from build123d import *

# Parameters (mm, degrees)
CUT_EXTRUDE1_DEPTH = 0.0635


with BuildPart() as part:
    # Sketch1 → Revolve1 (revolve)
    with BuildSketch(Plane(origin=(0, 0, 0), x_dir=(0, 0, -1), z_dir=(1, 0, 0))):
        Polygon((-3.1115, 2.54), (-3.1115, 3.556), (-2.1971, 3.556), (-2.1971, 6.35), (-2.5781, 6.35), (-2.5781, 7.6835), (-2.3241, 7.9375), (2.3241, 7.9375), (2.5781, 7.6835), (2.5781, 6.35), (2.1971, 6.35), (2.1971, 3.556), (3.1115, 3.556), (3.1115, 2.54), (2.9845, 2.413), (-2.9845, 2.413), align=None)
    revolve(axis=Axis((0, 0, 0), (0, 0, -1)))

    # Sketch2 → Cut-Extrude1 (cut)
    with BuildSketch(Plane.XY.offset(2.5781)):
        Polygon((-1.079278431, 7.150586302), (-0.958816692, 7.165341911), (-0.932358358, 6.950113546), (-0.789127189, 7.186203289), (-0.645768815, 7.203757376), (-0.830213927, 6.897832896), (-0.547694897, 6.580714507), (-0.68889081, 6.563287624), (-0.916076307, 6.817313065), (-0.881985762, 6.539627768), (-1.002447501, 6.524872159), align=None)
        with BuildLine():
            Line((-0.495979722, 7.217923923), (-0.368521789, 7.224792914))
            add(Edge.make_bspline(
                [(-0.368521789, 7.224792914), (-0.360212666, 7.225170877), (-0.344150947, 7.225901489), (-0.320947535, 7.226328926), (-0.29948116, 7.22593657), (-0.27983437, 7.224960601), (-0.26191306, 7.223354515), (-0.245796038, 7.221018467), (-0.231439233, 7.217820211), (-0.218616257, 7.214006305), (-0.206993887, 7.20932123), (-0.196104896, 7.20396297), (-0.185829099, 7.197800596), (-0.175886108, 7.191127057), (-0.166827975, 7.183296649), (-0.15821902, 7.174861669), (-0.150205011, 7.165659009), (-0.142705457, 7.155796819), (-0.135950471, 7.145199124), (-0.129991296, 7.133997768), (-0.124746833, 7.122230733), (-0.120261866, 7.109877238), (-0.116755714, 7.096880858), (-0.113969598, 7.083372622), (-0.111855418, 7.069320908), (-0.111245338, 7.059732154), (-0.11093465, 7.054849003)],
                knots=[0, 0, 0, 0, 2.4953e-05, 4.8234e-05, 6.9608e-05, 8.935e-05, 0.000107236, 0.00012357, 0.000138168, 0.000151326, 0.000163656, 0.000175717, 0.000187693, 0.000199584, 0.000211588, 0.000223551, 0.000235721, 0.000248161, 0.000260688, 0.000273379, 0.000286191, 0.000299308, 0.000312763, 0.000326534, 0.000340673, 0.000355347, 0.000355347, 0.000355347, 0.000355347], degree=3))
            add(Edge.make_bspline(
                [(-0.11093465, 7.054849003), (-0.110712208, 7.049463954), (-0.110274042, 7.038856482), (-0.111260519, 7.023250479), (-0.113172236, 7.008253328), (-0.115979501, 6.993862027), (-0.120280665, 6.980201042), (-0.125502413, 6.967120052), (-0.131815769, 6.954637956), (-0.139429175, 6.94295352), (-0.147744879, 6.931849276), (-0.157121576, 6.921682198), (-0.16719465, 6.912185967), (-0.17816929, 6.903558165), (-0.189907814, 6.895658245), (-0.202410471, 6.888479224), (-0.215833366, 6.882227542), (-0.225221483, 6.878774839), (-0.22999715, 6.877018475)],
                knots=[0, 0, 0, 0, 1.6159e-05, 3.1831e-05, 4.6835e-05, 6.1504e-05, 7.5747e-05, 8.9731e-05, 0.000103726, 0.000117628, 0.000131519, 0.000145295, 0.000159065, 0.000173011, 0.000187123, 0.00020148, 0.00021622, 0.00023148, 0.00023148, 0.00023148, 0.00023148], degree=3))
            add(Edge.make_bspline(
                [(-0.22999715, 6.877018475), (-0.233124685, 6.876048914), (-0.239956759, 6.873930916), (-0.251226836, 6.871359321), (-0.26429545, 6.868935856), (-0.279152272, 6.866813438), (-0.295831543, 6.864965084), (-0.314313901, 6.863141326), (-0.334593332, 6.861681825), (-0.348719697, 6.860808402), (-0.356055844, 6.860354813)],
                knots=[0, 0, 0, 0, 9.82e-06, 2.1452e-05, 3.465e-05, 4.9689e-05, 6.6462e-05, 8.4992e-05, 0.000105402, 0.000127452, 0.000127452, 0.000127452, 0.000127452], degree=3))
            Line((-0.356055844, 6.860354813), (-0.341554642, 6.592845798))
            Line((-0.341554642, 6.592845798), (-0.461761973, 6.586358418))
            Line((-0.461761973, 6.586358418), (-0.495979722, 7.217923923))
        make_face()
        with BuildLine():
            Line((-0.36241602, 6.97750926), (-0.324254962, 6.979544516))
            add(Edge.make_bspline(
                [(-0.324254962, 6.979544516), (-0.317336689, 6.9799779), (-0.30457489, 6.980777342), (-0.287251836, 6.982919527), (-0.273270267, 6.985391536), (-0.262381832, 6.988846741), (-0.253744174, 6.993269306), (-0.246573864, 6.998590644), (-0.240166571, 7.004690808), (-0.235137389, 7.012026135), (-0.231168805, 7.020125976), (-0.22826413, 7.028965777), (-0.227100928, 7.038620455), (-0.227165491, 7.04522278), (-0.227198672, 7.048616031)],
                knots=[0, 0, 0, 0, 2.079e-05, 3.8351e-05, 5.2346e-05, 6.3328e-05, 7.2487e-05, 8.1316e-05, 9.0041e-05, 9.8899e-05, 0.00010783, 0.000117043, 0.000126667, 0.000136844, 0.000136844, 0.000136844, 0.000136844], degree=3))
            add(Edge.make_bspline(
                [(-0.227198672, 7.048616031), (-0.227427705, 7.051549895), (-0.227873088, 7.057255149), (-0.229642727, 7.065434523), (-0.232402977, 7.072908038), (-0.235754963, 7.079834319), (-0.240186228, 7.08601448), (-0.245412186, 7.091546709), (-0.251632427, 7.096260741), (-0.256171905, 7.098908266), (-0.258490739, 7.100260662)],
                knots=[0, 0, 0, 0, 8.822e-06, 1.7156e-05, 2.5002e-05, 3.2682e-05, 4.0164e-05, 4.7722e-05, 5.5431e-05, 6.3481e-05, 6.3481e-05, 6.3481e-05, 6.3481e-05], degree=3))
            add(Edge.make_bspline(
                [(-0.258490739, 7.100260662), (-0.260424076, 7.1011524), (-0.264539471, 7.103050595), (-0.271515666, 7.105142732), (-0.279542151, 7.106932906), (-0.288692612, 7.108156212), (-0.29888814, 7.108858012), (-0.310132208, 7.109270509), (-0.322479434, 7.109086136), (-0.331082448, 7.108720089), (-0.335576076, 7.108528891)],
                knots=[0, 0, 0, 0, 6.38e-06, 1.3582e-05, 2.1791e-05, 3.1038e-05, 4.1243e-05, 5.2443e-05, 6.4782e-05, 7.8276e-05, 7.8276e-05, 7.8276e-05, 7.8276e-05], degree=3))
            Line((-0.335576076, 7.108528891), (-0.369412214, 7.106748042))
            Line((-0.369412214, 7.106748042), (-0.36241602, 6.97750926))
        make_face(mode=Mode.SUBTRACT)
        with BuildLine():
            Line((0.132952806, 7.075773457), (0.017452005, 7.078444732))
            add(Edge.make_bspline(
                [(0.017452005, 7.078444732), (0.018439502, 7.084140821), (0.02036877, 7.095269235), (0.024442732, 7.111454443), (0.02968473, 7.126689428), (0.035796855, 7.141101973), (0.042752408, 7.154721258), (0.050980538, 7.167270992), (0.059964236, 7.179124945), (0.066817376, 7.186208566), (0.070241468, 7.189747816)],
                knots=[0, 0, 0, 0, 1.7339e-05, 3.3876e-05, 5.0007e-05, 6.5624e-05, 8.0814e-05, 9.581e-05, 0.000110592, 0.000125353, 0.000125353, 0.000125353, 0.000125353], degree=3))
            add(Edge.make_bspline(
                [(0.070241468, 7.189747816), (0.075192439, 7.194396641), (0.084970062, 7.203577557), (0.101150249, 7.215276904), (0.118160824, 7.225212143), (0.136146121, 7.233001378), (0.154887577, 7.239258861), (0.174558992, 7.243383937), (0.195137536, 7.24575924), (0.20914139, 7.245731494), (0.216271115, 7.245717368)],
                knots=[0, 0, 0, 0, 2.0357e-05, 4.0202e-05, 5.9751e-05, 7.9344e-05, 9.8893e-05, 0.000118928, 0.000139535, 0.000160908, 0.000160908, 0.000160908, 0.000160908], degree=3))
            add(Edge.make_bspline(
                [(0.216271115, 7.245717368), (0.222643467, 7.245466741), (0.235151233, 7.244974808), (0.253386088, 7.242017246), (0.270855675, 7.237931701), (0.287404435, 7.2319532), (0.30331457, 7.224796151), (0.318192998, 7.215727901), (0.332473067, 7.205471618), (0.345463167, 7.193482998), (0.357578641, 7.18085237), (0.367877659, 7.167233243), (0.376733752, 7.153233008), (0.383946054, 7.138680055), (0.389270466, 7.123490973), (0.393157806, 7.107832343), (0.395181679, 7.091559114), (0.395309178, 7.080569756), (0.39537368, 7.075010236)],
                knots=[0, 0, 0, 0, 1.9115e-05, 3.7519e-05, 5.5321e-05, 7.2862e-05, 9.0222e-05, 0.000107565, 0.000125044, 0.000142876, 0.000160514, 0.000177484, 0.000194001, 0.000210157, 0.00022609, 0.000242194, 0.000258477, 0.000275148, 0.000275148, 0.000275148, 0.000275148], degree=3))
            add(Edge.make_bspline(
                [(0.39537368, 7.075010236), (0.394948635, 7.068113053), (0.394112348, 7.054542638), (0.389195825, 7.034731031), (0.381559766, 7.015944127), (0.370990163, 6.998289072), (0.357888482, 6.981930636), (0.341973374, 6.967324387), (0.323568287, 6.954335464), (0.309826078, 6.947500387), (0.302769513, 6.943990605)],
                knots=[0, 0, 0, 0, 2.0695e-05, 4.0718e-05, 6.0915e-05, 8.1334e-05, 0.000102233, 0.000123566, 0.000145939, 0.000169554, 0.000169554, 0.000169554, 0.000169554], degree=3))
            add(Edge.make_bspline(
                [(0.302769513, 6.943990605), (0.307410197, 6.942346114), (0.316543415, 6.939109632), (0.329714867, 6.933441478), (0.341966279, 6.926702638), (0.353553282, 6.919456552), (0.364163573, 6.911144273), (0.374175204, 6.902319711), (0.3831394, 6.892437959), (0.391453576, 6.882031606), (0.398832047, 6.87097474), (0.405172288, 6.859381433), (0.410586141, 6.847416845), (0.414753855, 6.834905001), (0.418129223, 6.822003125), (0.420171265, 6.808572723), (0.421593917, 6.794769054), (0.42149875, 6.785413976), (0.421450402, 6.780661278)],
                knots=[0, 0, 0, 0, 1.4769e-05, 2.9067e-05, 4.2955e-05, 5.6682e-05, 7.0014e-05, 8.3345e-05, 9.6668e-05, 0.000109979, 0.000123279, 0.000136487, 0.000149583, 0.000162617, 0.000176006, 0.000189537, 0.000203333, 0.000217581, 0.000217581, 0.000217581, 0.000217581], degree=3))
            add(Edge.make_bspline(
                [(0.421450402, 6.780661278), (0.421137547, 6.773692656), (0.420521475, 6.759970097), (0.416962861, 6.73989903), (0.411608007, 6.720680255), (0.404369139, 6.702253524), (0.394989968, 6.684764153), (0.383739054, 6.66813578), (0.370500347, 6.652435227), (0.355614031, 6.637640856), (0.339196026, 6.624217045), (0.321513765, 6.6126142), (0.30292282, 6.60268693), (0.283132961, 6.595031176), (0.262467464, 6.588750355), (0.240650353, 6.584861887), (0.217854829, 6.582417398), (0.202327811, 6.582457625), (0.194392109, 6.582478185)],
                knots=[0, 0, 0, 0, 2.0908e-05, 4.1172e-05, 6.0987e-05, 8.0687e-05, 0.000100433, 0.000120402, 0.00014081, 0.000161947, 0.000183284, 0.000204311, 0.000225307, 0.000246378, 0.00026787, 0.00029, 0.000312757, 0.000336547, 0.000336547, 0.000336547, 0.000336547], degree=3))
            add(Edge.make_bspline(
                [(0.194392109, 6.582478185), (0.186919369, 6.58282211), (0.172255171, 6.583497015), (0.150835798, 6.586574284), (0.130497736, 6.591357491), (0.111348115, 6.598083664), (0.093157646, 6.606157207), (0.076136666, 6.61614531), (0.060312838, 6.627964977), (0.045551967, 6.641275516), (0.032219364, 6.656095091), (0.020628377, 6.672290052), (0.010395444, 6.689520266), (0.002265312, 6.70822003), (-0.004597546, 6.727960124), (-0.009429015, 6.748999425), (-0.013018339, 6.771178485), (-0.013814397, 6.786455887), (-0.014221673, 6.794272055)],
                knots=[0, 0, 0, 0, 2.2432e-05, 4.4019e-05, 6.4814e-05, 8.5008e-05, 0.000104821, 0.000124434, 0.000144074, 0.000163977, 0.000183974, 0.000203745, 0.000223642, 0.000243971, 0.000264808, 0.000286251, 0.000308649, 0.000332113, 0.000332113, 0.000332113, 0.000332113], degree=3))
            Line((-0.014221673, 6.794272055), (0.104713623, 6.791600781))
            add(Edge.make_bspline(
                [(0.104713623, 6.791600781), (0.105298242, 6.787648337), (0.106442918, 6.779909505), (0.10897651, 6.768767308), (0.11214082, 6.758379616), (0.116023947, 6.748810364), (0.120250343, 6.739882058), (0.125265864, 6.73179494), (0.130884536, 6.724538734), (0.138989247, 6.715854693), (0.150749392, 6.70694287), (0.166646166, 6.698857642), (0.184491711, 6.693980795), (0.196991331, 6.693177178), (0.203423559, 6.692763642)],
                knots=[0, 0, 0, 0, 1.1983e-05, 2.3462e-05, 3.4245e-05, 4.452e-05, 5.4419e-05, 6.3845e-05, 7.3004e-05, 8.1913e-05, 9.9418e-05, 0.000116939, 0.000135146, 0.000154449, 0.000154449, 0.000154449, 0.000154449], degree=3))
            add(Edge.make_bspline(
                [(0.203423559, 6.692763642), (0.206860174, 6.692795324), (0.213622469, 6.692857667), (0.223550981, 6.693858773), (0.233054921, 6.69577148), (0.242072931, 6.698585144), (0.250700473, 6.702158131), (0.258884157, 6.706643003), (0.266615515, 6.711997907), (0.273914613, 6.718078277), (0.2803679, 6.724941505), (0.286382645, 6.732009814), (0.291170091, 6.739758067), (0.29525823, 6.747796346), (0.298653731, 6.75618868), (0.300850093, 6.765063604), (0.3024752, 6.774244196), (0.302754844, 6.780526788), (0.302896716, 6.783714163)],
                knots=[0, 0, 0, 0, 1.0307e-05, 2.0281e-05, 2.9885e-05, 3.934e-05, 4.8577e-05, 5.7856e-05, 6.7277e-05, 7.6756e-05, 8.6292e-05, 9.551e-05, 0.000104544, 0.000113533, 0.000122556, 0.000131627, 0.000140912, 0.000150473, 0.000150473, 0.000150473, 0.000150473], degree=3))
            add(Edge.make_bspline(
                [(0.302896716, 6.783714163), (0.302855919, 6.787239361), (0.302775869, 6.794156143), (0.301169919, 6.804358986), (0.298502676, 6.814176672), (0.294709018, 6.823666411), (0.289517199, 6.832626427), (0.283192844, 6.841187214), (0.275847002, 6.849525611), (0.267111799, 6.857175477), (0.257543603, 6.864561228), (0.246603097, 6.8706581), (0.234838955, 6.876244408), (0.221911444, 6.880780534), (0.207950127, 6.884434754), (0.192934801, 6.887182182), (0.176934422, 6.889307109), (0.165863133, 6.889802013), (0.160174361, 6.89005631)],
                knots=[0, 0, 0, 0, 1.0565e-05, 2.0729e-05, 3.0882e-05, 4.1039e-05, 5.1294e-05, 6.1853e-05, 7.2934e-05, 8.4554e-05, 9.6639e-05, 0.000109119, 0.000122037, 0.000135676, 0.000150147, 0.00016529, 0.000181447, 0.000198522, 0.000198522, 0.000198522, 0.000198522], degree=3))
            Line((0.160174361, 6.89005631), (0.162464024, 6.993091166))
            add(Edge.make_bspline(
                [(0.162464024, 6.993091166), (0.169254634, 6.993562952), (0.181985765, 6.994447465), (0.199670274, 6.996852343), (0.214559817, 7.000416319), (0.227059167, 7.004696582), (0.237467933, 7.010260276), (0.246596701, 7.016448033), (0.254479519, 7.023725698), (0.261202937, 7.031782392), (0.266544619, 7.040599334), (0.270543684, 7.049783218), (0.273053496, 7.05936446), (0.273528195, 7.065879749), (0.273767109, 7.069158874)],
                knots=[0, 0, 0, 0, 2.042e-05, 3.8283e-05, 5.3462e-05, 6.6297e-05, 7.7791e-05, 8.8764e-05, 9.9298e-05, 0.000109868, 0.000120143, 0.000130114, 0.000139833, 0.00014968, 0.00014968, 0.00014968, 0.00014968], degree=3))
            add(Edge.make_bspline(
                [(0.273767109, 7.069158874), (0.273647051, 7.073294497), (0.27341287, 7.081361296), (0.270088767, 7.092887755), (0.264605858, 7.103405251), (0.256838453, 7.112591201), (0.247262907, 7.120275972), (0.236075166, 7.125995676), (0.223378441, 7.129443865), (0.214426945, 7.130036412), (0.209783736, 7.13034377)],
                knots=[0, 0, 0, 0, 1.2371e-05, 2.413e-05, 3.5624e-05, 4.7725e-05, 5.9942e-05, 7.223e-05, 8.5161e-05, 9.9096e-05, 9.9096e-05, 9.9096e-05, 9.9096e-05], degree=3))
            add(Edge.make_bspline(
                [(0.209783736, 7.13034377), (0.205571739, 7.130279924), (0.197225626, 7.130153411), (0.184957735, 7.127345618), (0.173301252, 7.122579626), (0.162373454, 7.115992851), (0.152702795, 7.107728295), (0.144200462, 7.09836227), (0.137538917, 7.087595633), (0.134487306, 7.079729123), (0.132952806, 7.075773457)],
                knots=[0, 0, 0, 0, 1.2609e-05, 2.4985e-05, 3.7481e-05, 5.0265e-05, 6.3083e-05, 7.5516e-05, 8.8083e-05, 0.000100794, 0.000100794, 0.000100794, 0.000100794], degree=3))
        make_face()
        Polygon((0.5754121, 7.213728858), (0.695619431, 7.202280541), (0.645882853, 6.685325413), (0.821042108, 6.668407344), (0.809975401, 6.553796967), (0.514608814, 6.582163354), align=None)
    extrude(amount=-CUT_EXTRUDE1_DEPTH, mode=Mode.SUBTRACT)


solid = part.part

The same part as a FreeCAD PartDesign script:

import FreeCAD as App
import Part
import Sketcher

V = App.Vector
Q = App.Units.Quantity

doc = App.newDocument("Part")
body = doc.addObject("PartDesign::Body", "Body")

sketch1 = body.newObject("Sketcher::SketchObject", "Sketch")
sketch1.AttachmentSupport = (doc.getObject("YZ_Plane"), [""])
sketch1.MapMode = "FlatFace"
sketch1.addGeometry([
    Part.LineSegment(V(3.556, 3.1115, 0), V(2.54, 3.1115, 0)),
    Part.LineSegment(V(2.54, 3.1115, 0), V(2.413, 2.9845, 0)),
    Part.LineSegment(V(2.413, 2.9845, 0), V(2.413, -2.9845, 0)),
    Part.LineSegment(V(2.413, -2.9845, 0), V(2.54, -3.1115, 0)),
    Part.LineSegment(V(2.54, -3.1115, 0), V(3.556, -3.1115, 0)),
    Part.LineSegment(V(3.556, -3.1115, 0), V(3.556, -2.1971, 0)),
    Part.LineSegment(V(3.556, -2.1971, 0), V(6.35, -2.1971, 0)),
    Part.LineSegment(V(6.35, -2.1971, 0), V(6.35, -2.5781, 0)),
    Part.LineSegment(V(6.35, -2.5781, 0), V(7.6835, -2.5781, 0)),
    Part.LineSegment(V(7.6835, -2.5781, 0), V(7.9375, -2.3241, 0)),
    Part.LineSegment(V(7.9375, -2.3241, 0), V(7.9375, 2.3241, 0)),
    Part.LineSegment(V(7.9375, 2.3241, 0), V(7.6835, 2.5781, 0)),
    Part.LineSegment(V(7.6835, 2.5781, 0), V(6.35, 2.5781, 0)),
    Part.LineSegment(V(6.35, 2.5781, 0), V(6.35, 2.1971, 0)),
    Part.LineSegment(V(6.35, 2.1971, 0), V(3.556, 2.1971, 0)),
    Part.LineSegment(V(3.556, 2.1971, 0), V(3.556, 3.1115, 0)),
], False)
sketch1.addConstraint([
    Sketcher.Constraint("Coincident", 0, 2, 1, 1),
    Sketcher.Constraint("Coincident", 1, 2, 2, 1),
    Sketcher.Constraint("Coincident", 2, 2, 3, 1),
    Sketcher.Constraint("Coincident", 3, 2, 4, 1),
    Sketcher.Constraint("Coincident", 4, 2, 5, 1),
    Sketcher.Constraint("Coincident", 5, 2, 6, 1),
    Sketcher.Constraint("Coincident", 6, 2, 7, 1),
    Sketcher.Constraint("Coincident", 7, 2, 8, 1),
    Sketcher.Constraint("Coincident", 8, 2, 9, 1),
    Sketcher.Constraint("Coincident", 9, 2, 10, 1),
    Sketcher.Constraint("Coincident", 10, 2, 11, 1),
    Sketcher.Constraint("Coincident", 11, 2, 12, 1),
    Sketcher.Constraint("Coincident", 12, 2, 13, 1),
    Sketcher.Constraint("Coincident", 13, 2, 14, 1),
    Sketcher.Constraint("Coincident", 14, 2, 15, 1),
    Sketcher.Constraint("Coincident", 15, 2, 0, 1),
    Sketcher.Constraint("Horizontal", 0),
    Sketcher.Constraint("Vertical", 2),
    Sketcher.Constraint("Horizontal", 4),
    Sketcher.Constraint("Vertical", 5),
    Sketcher.Constraint("Horizontal", 6),
    Sketcher.Constraint("Vertical", 7),
    Sketcher.Constraint("Horizontal", 8),
    Sketcher.Constraint("Vertical", 10),
    Sketcher.Constraint("Horizontal", 12),
    Sketcher.Constraint("Vertical", 13),
    Sketcher.Constraint("Horizontal", 14),
    Sketcher.Constraint("Vertical", 15),
    Sketcher.Constraint("Symmetric", 0, 2, 3, 2, -1),
    Sketcher.Constraint("Symmetric", 8, 2, 11, 2, -1),
    Sketcher.Constraint("Symmetric", 6, 2, 13, 2, -1),
    Sketcher.Constraint("Perpendicular", 1, 3),
    Sketcher.Constraint("Perpendicular", 3, 9),
    Sketcher.Constraint("Perpendicular", 9, 11),
    Sketcher.Constraint("Vertical", 5, 2, 14, 2),
    Sketcher.Constraint("Equal", 1, 3),
    Sketcher.Constraint("DistanceX", 0, 2, 0, 1, Q("0.04 in")),
    Sketcher.Constraint("DistanceX", 6, 1, 6, 2, Q("0.11 in")),
    Sketcher.Constraint("DistanceX", -1, 1, 0, 2, Q("0.1 in")),
    Sketcher.Constraint("DistanceY", 2, 2, 2, 1, Q("0.235 in")),
    Sketcher.Constraint("DistanceY", 5, 1, 5, 2, Q("0.036 in")),
    Sketcher.Constraint("DistanceY", 7, 2, 7, 1, Q("0.015 in")),
    Sketcher.Constraint("DistanceY", 10, 1, 10, 2, Q("0.183 in")),
    Sketcher.Constraint("DistanceY", 2, 2, 0, 2, Q("0.24 in")),
    Sketcher.Constraint("DistanceX", 8, 1, 8, 2, Q("0.0525 in")),
])
revolution = body.newObject("PartDesign::Revolution", "Revolution")
revolution.Profile = sketch1
revolution.ReferenceAxis = (sketch1, ["V_Axis"])
revolution.Angle = 360

sketch2 = body.newObject("Sketcher::SketchObject", "Sketch001")
sketch2.AttachmentSupport = (doc.getObject("XY_Plane"), [""])
sketch2.MapMode = "FlatFace"
sketch2.AttachmentOffset = App.Placement(V(0, 0, 0.1015 * 25.4), App.Rotation())
sketch2.addGeometry([
    Part.LineSegment(V(-0.958817, 7.165342, 0), V(-1.079278, 7.150586, 0)),
    Part.LineSegment(V(-1.079278, 7.150586, 0), V(-1.002448, 6.524872, 0)),
    Part.LineSegment(V(-1.002448, 6.524872, 0), V(-0.881986, 6.539628, 0)),
    Part.LineSegment(V(-0.881986, 6.539628, 0), V(-0.916076, 6.817313, 0)),
    Part.LineSegment(V(-0.916076, 6.817313, 0), V(-0.688891, 6.563288, 0)),
    Part.LineSegment(V(-0.688891, 6.563288, 0), V(-0.547695, 6.580715, 0)),
    Part.LineSegment(V(-0.547695, 6.580715, 0), V(-0.830214, 6.897833, 0)),
    Part.LineSegment(V(-0.830214, 6.897833, 0), V(-0.645769, 7.203757, 0)),
    Part.LineSegment(V(-0.645769, 7.203757, 0), V(-0.789127, 7.186203, 0)),
    Part.LineSegment(V(-0.789127, 7.186203, 0), V(-0.932358, 6.950114, 0)),
    Part.LineSegment(V(-0.932358, 6.950114, 0), V(-0.958817, 7.165342, 0)),
    Part.LineSegment(V(-0.368522, 7.224793, 0), V(-0.49598, 7.217924, 0)),
    Part.LineSegment(V(-0.49598, 7.217924, 0), V(-0.461762, 6.586358, 0)),
    Part.LineSegment(V(-0.461762, 6.586358, 0), V(-0.341555, 6.592846, 0)),
    Part.LineSegment(V(-0.341555, 6.592846, 0), V(-0.356056, 6.860355, 0)),
    Part.BSplineCurve([V(-0.229997, 6.877018, 0), V(-0.233125, 6.876049, 0), V(-0.239957, 6.873931, 0), V(-0.251227, 6.871359, 0), V(-0.264295, 6.868936, 0), V(-0.279152, 6.866813, 0), V(-0.295832, 6.864965, 0), V(-0.314314, 6.863141, 0), V(-0.334593, 6.861682, 0), V(-0.34872, 6.860808, 0), V(-0.356056, 6.860355, 0)], [4, 1, 1, 1, 1, 1, 1, 1, 4], [0, 0.00000982, 0.000021452, 0.00003465, 0.000049689, 0.000066462, 0.000084992, 0.000105402, 0.000127452], False, 3, [1, 1, 1, 1, 1, 1, 1, 1, 1, 1, 1], False),
    Part.BSplineCurve([V(-0.110935, 7.054849, 0), V(-0.110712, 7.049464, 0), V(-0.110274, 7.038856, 0), V(-0.111261, 7.02325, 0), V(-0.113172, 7.008253, 0), V(-0.11598, 6.993862, 0), V(-0.120281, 6.980201, 0), V(-0.125502, 6.96712, 0), V(-0.131816, 6.954638, 0), V(-0.139429, 6.942954, 0), V(-0.147745, 6.931849, 0), V(-0.157122, 6.921682, 0), V(-0.167195, 6.912186, 0), V(-0.178169, 6.903558, 0), V(-0.189908, 6.895658, 0), V(-0.20241, 6.888479, 0), V(-0.215833, 6.882228, 0), V(-0.225221, 6.878775, 0), V(-0.229997, 6.877018, 0)], [4, 1, 1, 1, 1, 1, 1, 1, 1, 1, 1, 1, 1, 1, 1, 1, 4], [0, 0.000016159, 0.000031831, 0.000046835, 0.000061504, 0.000075747, 0.000089731, 0.000103726, 0.000117628, 0.000131519, 0.000145295, 0.000159065, 0.000173011, 0.000187123, 0.00020148, 0.00021622, 0.00023148], False, 3, [1, 1, 1, 1, 1, 1, 1, 1, 1, 1, 1, 1, 1, 1, 1, 1, 1, 1, 1], False),
    Part.BSplineCurve([V(-0.368522, 7.224793, 0), V(-0.360213, 7.225171, 0), V(-0.344151, 7.225901, 0), V(-0.320948, 7.226329, 0), V(-0.299481, 7.225937, 0), V(-0.279834, 7.224961, 0), V(-0.261913, 7.223355, 0), V(-0.245796, 7.221018, 0), V(-0.231439, 7.21782, 0), V(-0.218616, 7.214006, 0), V(-0.206994, 7.209321, 0), V(-0.196105, 7.203963, 0), V(-0.185829, 7.197801, 0), V(-0.175886, 7.191127, 0), V(-0.166828, 7.183297, 0), V(-0.158219, 7.174862, 0), V(-0.150205, 7.165659, 0), V(-0.142705, 7.155797, 0), V(-0.13595, 7.145199, 0), V(-0.129991, 7.133998, 0), V(-0.124747, 7.122231, 0), V(-0.120262, 7.109877, 0), V(-0.116756, 7.096881, 0), V(-0.11397, 7.083373, 0), V(-0.111855, 7.069321, 0), V(-0.111245, 7.059732, 0), V(-0.110935, 7.054849, 0)], [4, 1, 1, 1, 1, 1, 1, 1, 1, 1, 1, 1, 1, 1, 1, 1, 1, 1, 1, 1, 1, 1, 1, 1, 4], [0, 0.000024953, 0.000048234, 0.000069608, 0.00008935, 0.000107236, 0.00012357, 0.000138168, 0.000151326, 0.000163656, 0.000175717, 0.000187693, 0.000199584, 0.000211588, 0.000223551, 0.000235721, 0.000248161, 0.000260688, 0.000273379, 0.000286191, 0.000299308, 0.000312763, 0.000326534, 0.000340673, 0.000355347], False, 3, [1, 1, 1, 1, 1, 1, 1, 1, 1, 1, 1, 1, 1, 1, 1, 1, 1, 1, 1, 1, 1, 1, 1, 1, 1, 1, 1], False),
    Part.LineSegment(V(-0.362416, 6.977509, 0), V(-0.369412, 7.106748, 0)),
    Part.LineSegment(V(-0.369412, 7.106748, 0), V(-0.335576, 7.108529, 0)),
    Part.BSplineCurve([V(-0.258491, 7.100261, 0), V(-0.260424, 7.101152, 0), V(-0.264539, 7.103051, 0), V(-0.271516, 7.105143, 0), V(-0.279542, 7.106933, 0), V(-0.288693, 7.108156, 0), V(-0.298888, 7.108858, 0), V(-0.310132, 7.109271, 0), V(-0.322479, 7.109086, 0), V(-0.331082, 7.10872, 0), V(-0.335576, 7.108529, 0)], [4, 1, 1, 1, 1, 1, 1, 1, 4], [0, 0.00000638, 0.000013582, 0.000021791, 0.000031038, 0.000041243, 0.000052443, 0.000064782, 0.000078276], False, 3, [1, 1, 1, 1, 1, 1, 1, 1, 1, 1, 1], False),
    Part.BSplineCurve([V(-0.227199, 7.048616, 0), V(-0.227428, 7.05155, 0), V(-0.227873, 7.057255, 0), V(-0.229643, 7.065435, 0), V(-0.232403, 7.072908, 0), V(-0.235755, 7.079834, 0), V(-0.240186, 7.086014, 0), V(-0.245412, 7.091547, 0), V(-0.251632, 7.096261, 0), V(-0.256172, 7.098908, 0), V(-0.258491, 7.100261, 0)], [4, 1, 1, 1, 1, 1, 1, 1, 4], [0, 0.000008822, 0.000017156, 0.000025002, 0.000032682, 0.000040164, 0.000047722, 0.000055431, 0.000063481], False, 3, [1, 1, 1, 1, 1, 1, 1, 1, 1, 1, 1], False),
    Part.BSplineCurve([V(-0.324255, 6.979545, 0), V(-0.317337, 6.979978, 0), V(-0.304575, 6.980777, 0), V(-0.287252, 6.98292, 0), V(-0.27327, 6.985392, 0), V(-0.262382, 6.988847, 0), V(-0.253744, 6.993269, 0), V(-0.246574, 6.998591, 0), V(-0.240167, 7.004691, 0), V(-0.235137, 7.012026, 0), V(-0.231169, 7.020126, 0), V(-0.228264, 7.028966, 0), V(-0.227101, 7.03862, 0), V(-0.227165, 7.045223, 0), V(-0.227199, 7.048616, 0)], [4, 1, 1, 1, 1, 1, 1, 1, 1, 1, 1, 1, 4], [0, 0.00002079, 0.000038351, 0.000052346, 0.000063328, 0.000072487, 0.000081316, 0.000090041, 0.000098899, 0.00010783, 0.000117043, 0.000126667, 0.000136844], False, 3, [1, 1, 1, 1, 1, 1, 1, 1, 1, 1, 1, 1, 1, 1, 1], False),
    Part.LineSegment(V(-0.324255, 6.979545, 0), V(-0.362416, 6.977509, 0)),
    Part.LineSegment(V(0.017452, 7.078445, 0), V(0.132953, 7.075773, 0)),
    Part.BSplineCurve([V(0.209784, 7.130344, 0), V(0.205572, 7.13028, 0), V(0.197226, 7.130153, 0), V(0.184958, 7.127346, 0), V(0.173301, 7.12258, 0), V(0.162373, 7.115993, 0), V(0.152703, 7.107728, 0), V(0.1442, 7.098362, 0), V(0.137539, 7.087596, 0), V(0.134487, 7.079729, 0), V(0.132953, 7.075773, 0)], [4, 1, 1, 1, 1, 1, 1, 1, 4], [0, 0.000012609, 0.000024985, 0.000037481, 0.000050265, 0.000063083, 0.000075516, 0.000088083, 0.000100794], False, 3, [1, 1, 1, 1, 1, 1, 1, 1, 1, 1, 1], False),
    Part.BSplineCurve([V(0.273767, 7.069159, 0), V(0.273647, 7.073294, 0), V(0.273413, 7.081361, 0), V(0.270089, 7.092888, 0), V(0.264606, 7.103405, 0), V(0.256838, 7.112591, 0), V(0.247263, 7.120276, 0), V(0.236075, 7.125996, 0), V(0.223378, 7.129444, 0), V(0.214427, 7.130036, 0), V(0.209784, 7.130344, 0)], [4, 1, 1, 1, 1, 1, 1, 1, 4], [0, 0.000012371, 0.00002413, 0.000035624, 0.000047725, 0.000059942, 0.00007223, 0.000085161, 0.000099096], False, 3, [1, 1, 1, 1, 1, 1, 1, 1, 1, 1, 1], False),
    Part.BSplineCurve([V(0.162464, 6.993091, 0), V(0.169255, 6.993563, 0), V(0.181986, 6.994447, 0), V(0.19967, 6.996852, 0), V(0.21456, 7.000416, 0), V(0.227059, 7.004697, 0), V(0.237468, 7.01026, 0), V(0.246597, 7.016448, 0), V(0.25448, 7.023726, 0), V(0.261203, 7.031782, 0), V(0.266545, 7.040599, 0), V(0.270544, 7.049783, 0), V(0.273053, 7.059364, 0), V(0.273528, 7.06588, 0), V(0.273767, 7.069159, 0)], [4, 1, 1, 1, 1, 1, 1, 1, 1, 1, 1, 1, 4], [0, 0.00002042, 0.000038283, 0.000053462, 0.000066297, 0.000077791, 0.000088764, 0.000099298, 0.000109868, 0.000120143, 0.000130114, 0.000139833, 0.00014968], False, 3, [1, 1, 1, 1, 1, 1, 1, 1, 1, 1, 1, 1, 1, 1, 1], False),
    Part.LineSegment(V(0.162464, 6.993091, 0), V(0.160174, 6.890056, 0)),
    Part.BSplineCurve([V(0.302897, 6.783714, 0), V(0.302856, 6.787239, 0), V(0.302776, 6.794156, 0), V(0.30117, 6.804359, 0), V(0.298503, 6.814177, 0), V(0.294709, 6.823666, 0), V(0.289517, 6.832626, 0), V(0.283193, 6.841187, 0), V(0.275847, 6.849526, 0), V(0.267112, 6.857175, 0), V(0.257544, 6.864561, 0), V(0.246603, 6.870658, 0), V(0.234839, 6.876244, 0), V(0.221911, 6.880781, 0), V(0.20795, 6.884435, 0), V(0.192935, 6.887182, 0), V(0.176934, 6.889307, 0), V(0.165863, 6.889802, 0), V(0.160174, 6.890056, 0)], [4, 1, 1, 1, 1, 1, 1, 1, 1, 1, 1, 1, 1, 1, 1, 1, 4], [0, 0.000010565, 0.000020729, 0.000030882, 0.000041039, 0.000051294, 0.000061853, 0.000072934, 0.000084554, 0.000096639, 0.000109119, 0.000122037, 0.000135676, 0.000150147, 0.00016529, 0.000181447, 0.000198522], False, 3, [1, 1, 1, 1, 1, 1, 1, 1, 1, 1, 1, 1, 1, 1, 1, 1, 1, 1, 1], False),
    Part.BSplineCurve([V(0.203424, 6.692764, 0), V(0.20686, 6.692795, 0), V(0.213622, 6.692858, 0), V(0.223551, 6.693859, 0), V(0.233055, 6.695771, 0), V(0.242073, 6.698585, 0), V(0.2507, 6.702158, 0), V(0.258884, 6.706643, 0), V(0.266616, 6.711998, 0), V(0.273915, 6.718078, 0), V(0.280368, 6.724942, 0), V(0.286383, 6.73201, 0), V(0.29117, 6.739758, 0), V(0.295258, 6.747796, 0), V(0.298654, 6.756189, 0), V(0.30085, 6.765064, 0), V(0.302475, 6.774244, 0), V(0.302755, 6.780527, 0), V(0.302897, 6.783714, 0)], [4, 1, 1, 1, 1, 1, 1, 1, 1, 1, 1, 1, 1, 1, 1, 1, 4], [0, 0.000010307, 0.000020281, 0.000029885, 0.00003934, 0.000048577, 0.000057856, 0.000067277, 0.000076756, 0.000086292, 0.00009551, 0.000104544, 0.000113533, 0.000122556, 0.000131627, 0.000140912, 0.000150473], False, 3, [1, 1, 1, 1, 1, 1, 1, 1, 1, 1, 1, 1, 1, 1, 1, 1, 1, 1, 1], False),
    Part.BSplineCurve([V(0.104714, 6.791601, 0), V(0.105298, 6.787648, 0), V(0.106443, 6.77991, 0), V(0.108977, 6.768767, 0), V(0.112141, 6.75838, 0), V(0.116024, 6.74881, 0), V(0.12025, 6.739882, 0), V(0.125266, 6.731795, 0), V(0.130885, 6.724539, 0), V(0.138989, 6.715855, 0), V(0.150749, 6.706943, 0), V(0.166646, 6.698858, 0), V(0.184492, 6.693981, 0), V(0.196991, 6.693177, 0), V(0.203424, 6.692764, 0)], [4, 1, 1, 1, 1, 1, 1, 1, 1, 1, 1, 1, 4], [0, 0.000011983, 0.000023462, 0.000034245, 0.00004452, 0.000054419, 0.000063845, 0.000073004, 0.000081913, 0.000099418, 0.000116939, 0.000135146, 0.000154449], False, 3, [1, 1, 1, 1, 1, 1, 1, 1, 1, 1, 1, 1, 1, 1, 1], False),
    Part.LineSegment(V(0.104714, 6.791601, 0), V(-0.014222, 6.794272, 0)),
    Part.BSplineCurve([V(0.194392, 6.582478, 0), V(0.186919, 6.582822, 0), V(0.172255, 6.583497, 0), V(0.150836, 6.586574, 0), V(0.130498, 6.591357, 0), V(0.111348, 6.598084, 0), V(0.093158, 6.606157, 0), V(0.076137, 6.616145, 0), V(0.060313, 6.627965, 0), V(0.045552, 6.641276, 0), V(0.032219, 6.656095, 0), V(0.020628, 6.67229, 0), V(0.010395, 6.68952, 0), V(0.002265, 6.70822, 0), V(-0.004598, 6.72796, 0), V(-0.009429, 6.748999, 0), V(-0.013018, 6.771178, 0), V(-0.013814, 6.786456, 0), V(-0.014222, 6.794272, 0)], [4, 1, 1, 1, 1, 1, 1, 1, 1, 1, 1, 1, 1, 1, 1, 1, 4], [0, 0.000022432, 0.000044019, 0.000064814, 0.000085008, 0.000104821, 0.000124434, 0.000144074, 0.000163977, 0.000183974, 0.000203745, 0.000223642, 0.000243971, 0.000264808, 0.000286251, 0.000308649, 0.000332113], False, 3, [1, 1, 1, 1, 1, 1, 1, 1, 1, 1, 1, 1, 1, 1, 1, 1, 1, 1, 1], False),
    Part.BSplineCurve([V(0.42145, 6.780661, 0), V(0.421138, 6.773693, 0), V(0.420521, 6.75997, 0), V(0.416963, 6.739899, 0), V(0.411608, 6.72068, 0), V(0.404369, 6.702254, 0), V(0.39499, 6.684764, 0), V(0.383739, 6.668136, 0), V(0.3705, 6.652435, 0), V(0.355614, 6.637641, 0), V(0.339196, 6.624217, 0), V(0.321514, 6.612614, 0), V(0.302923, 6.602687, 0), V(0.283133, 6.595031, 0), V(0.262467, 6.58875, 0), V(0.24065, 6.584862, 0), V(0.217855, 6.582417, 0), V(0.202328, 6.582458, 0), V(0.194392, 6.582478, 0)], [4, 1, 1, 1, 1, 1, 1, 1, 1, 1, 1, 1, 1, 1, 1, 1, 4], [0, 0.000020908, 0.000041172, 0.000060987, 0.000080687, 0.000100433, 0.000120402, 0.00014081, 0.000161947, 0.000183284, 0.000204311, 0.000225307, 0.000246378, 0.00026787, 0.00029, 0.000312757, 0.000336547], False, 3, [1, 1, 1, 1, 1, 1, 1, 1, 1, 1, 1, 1, 1, 1, 1, 1, 1, 1, 1], False),
    Part.BSplineCurve([V(0.30277, 6.943991, 0), V(0.30741, 6.942346, 0), V(0.316543, 6.93911, 0), V(0.329715, 6.933441, 0), V(0.341966, 6.926703, 0), V(0.353553, 6.919457, 0), V(0.364164, 6.911144, 0), V(0.374175, 6.90232, 0), V(0.383139, 6.892438, 0), V(0.391454, 6.882032, 0), V(0.398832, 6.870975, 0), V(0.405172, 6.859381, 0), V(0.410586, 6.847417, 0), V(0.414754, 6.834905, 0), V(0.418129, 6.822003, 0), V(0.420171, 6.808573, 0), V(0.421594, 6.794769, 0), V(0.421499, 6.785414, 0), V(0.42145, 6.780661, 0)], [4, 1, 1, 1, 1, 1, 1, 1, 1, 1, 1, 1, 1, 1, 1, 1, 4], [0, 0.000014769, 0.000029067, 0.000042955, 0.000056682, 0.000070014, 0.000083345, 0.000096668, 0.000109979, 0.000123279, 0.000136487, 0.000149583, 0.000162617, 0.000176006, 0.000189537, 0.000203333, 0.000217581], False, 3, [1, 1, 1, 1, 1, 1, 1, 1, 1, 1, 1, 1, 1, 1, 1, 1, 1, 1, 1], False),
    Part.BSplineCurve([V(0.395374, 7.07501, 0), V(0.394949, 7.068113, 0), V(0.394112, 7.054543, 0), V(0.389196, 7.034731, 0), V(0.38156, 7.015944, 0), V(0.37099, 6.998289, 0), V(0.357888, 6.981931, 0), V(0.341973, 6.967324, 0), V(0.323568, 6.954335, 0), V(0.309826, 6.9475, 0), V(0.30277, 6.943991, 0)], [4, 1, 1, 1, 1, 1, 1, 1, 4], [0, 0.000020695, 0.000040718, 0.000060915, 0.000081334, 0.000102233, 0.000123566, 0.000145939, 0.000169554], False, 3, [1, 1, 1, 1, 1, 1, 1, 1, 1, 1, 1], False),
    Part.BSplineCurve([V(0.216271, 7.245717, 0), V(0.222643, 7.245467, 0), V(0.235151, 7.244975, 0), V(0.253386, 7.242017, 0), V(0.270856, 7.237932, 0), V(0.287404, 7.231953, 0), V(0.303315, 7.224796, 0), V(0.318193, 7.215728, 0), V(0.332473, 7.205472, 0), V(0.345463, 7.193483, 0), V(0.357579, 7.180852, 0), V(0.367878, 7.167233, 0), V(0.376734, 7.153233, 0), V(0.383946, 7.13868, 0), V(0.38927, 7.123491, 0), V(0.393158, 7.107832, 0), V(0.395182, 7.091559, 0), V(0.395309, 7.08057, 0), V(0.395374, 7.07501, 0)], [4, 1, 1, 1, 1, 1, 1, 1, 1, 1, 1, 1, 1, 1, 1, 1, 4], [0, 0.000019115, 0.000037519, 0.000055321, 0.000072862, 0.000090222, 0.000107565, 0.000125044, 0.000142876, 0.000160514, 0.000177484, 0.000194001, 0.000210157, 0.00022609, 0.000242194, 0.000258477, 0.000275148], False, 3, [1, 1, 1, 1, 1, 1, 1, 1, 1, 1, 1, 1, 1, 1, 1, 1, 1, 1, 1], False),
    Part.BSplineCurve([V(0.070241, 7.189748, 0), V(0.075192, 7.194397, 0), V(0.08497, 7.203578, 0), V(0.10115, 7.215277, 0), V(0.118161, 7.225212, 0), V(0.136146, 7.233001, 0), V(0.154888, 7.239259, 0), V(0.174559, 7.243384, 0), V(0.195138, 7.245759, 0), V(0.209141, 7.245731, 0), V(0.216271, 7.245717, 0)], [4, 1, 1, 1, 1, 1, 1, 1, 4], [0, 0.000020357, 0.000040202, 0.000059751, 0.000079344, 0.000098893, 0.000118928, 0.000139535, 0.000160908], False, 3, [1, 1, 1, 1, 1, 1, 1, 1, 1, 1, 1], False),
    Part.BSplineCurve([V(0.017452, 7.078445, 0), V(0.01844, 7.084141, 0), V(0.020369, 7.095269, 0), V(0.024443, 7.111454, 0), V(0.029685, 7.126689, 0), V(0.035797, 7.141102, 0), V(0.042752, 7.154721, 0), V(0.050981, 7.167271, 0), V(0.059964, 7.179125, 0), V(0.066817, 7.186209, 0), V(0.070241, 7.189748, 0)], [4, 1, 1, 1, 1, 1, 1, 1, 4], [0, 0.000017339, 0.000033876, 0.000050007, 0.000065624, 0.000080814, 0.00009581, 0.000110592, 0.000125353], False, 3, [1, 1, 1, 1, 1, 1, 1, 1, 1, 1, 1], False),
    Part.LineSegment(V(0.695619, 7.202281, 0), V(0.575412, 7.213729, 0)),
    Part.LineSegment(V(0.575412, 7.213729, 0), V(0.514609, 6.582163, 0)),
    Part.LineSegment(V(0.514609, 6.582163, 0), V(0.809975, 6.553797, 0)),
    Part.LineSegment(V(0.809975, 6.553797, 0), V(0.821042, 6.668407, 0)),
    Part.LineSegment(V(0.821042, 6.668407, 0), V(0.645883, 6.685325, 0)),
    Part.LineSegment(V(0.645883, 6.685325, 0), V(0.695619, 7.202281, 0)),
], False)
sketch2.addConstraint([
    Sketcher.Constraint("Block", 15),
    Sketcher.Constraint("Block", 16),
    Sketcher.Constraint("Block", 17),
    Sketcher.Constraint("Block", 20),
    Sketcher.Constraint("Block", 21),
    Sketcher.Constraint("Block", 22),
    Sketcher.Constraint("Block", 25),
    Sketcher.Constraint("Block", 26),
    Sketcher.Constraint("Block", 27),
    Sketcher.Constraint("Block", 29),
    Sketcher.Constraint("Block", 30),
    Sketcher.Constraint("Block", 31),
    Sketcher.Constraint("Block", 33),
    Sketcher.Constraint("Block", 34),
    Sketcher.Constraint("Block", 35),
    Sketcher.Constraint("Block", 36),
    Sketcher.Constraint("Block", 37),
    Sketcher.Constraint("Block", 38),
    Sketcher.Constraint("Block", 39),
    Sketcher.Constraint("Coincident", 0, 2, 1, 1),
    Sketcher.Constraint("Coincident", 1, 2, 2, 1),
    Sketcher.Constraint("Coincident", 2, 2, 3, 1),
    Sketcher.Constraint("Coincident", 3, 2, 4, 1),
    Sketcher.Constraint("Coincident", 4, 2, 5, 1),
    Sketcher.Constraint("Coincident", 5, 2, 6, 1),
    Sketcher.Constraint("Coincident", 6, 2, 7, 1),
    Sketcher.Constraint("Coincident", 7, 2, 8, 1),
    Sketcher.Constraint("Coincident", 8, 2, 9, 1),
    Sketcher.Constraint("Coincident", 9, 2, 10, 1),
    Sketcher.Constraint("Coincident", 10, 2, 0, 1),
    Sketcher.Constraint("Coincident", 11, 2, 12, 1),
    Sketcher.Constraint("Coincident", 12, 2, 13, 1),
    Sketcher.Constraint("Coincident", 13, 2, 14, 1),
    Sketcher.Constraint("Coincident", 14, 2, 15, 2),
    Sketcher.Constraint("Coincident", 17, 1, 11, 1),
    Sketcher.Constraint("Coincident", 18, 2, 19, 1),
    Sketcher.Constraint("Coincident", 19, 2, 20, 2),
    Sketcher.Constraint("Coincident", 22, 1, 23, 1),
    Sketcher.Constraint("Coincident", 23, 2, 18, 1),
    Sketcher.Constraint("Coincident", 24, 2, 25, 2),
    Sketcher.Constraint("Coincident", 27, 1, 28, 1),
    Sketcher.Constraint("Coincident", 28, 2, 29, 2),
    Sketcher.Constraint("Coincident", 31, 1, 32, 1),
    Sketcher.Constraint("Coincident", 32, 2, 33, 2),
    Sketcher.Constraint("Coincident", 39, 1, 24, 1),
    Sketcher.Constraint("Coincident", 40, 2, 41, 1),
    Sketcher.Constraint("Coincident", 41, 2, 42, 1),
    Sketcher.Constraint("Coincident", 42, 2, 43, 1),
    Sketcher.Constraint("Coincident", 43, 2, 44, 1),
    Sketcher.Constraint("Coincident", 44, 2, 45, 1),
    Sketcher.Constraint("Coincident", 45, 2, 40, 1),
    Sketcher.Constraint("Parallel", 0, 2),
    Sketcher.Constraint("Equal", 0, 2),
    Sketcher.Constraint("DistanceY", -1, 1, 10, 2, Q("0.2821001 in")),
    Sketcher.Constraint("Distance", 14, Q("0.267902 mm")),
    Sketcher.Constraint("DistanceY", 4, 2, 0, 2, Q("0.587299 mm")),
    Sketcher.Constraint("DistanceY", 5, 2, 3, 2, Q("0.236599 mm")),
    Sketcher.Constraint("DistanceY", 3, 2, 9, 2, Q("0.1328 mm")),
    Sketcher.Constraint("DistanceX", 14, 2, 13, 2, Q("0.014501 mm")),
    Sketcher.Constraint("DistanceX", 6, 2, 18, 2, Q("0.460802 mm")),
    Sketcher.Constraint("DistanceY", 19, 2, 40, 2, Q("0.1052 mm")),
    Sketcher.Constraint("DistanceX", 28, 2, 42, 2, Q("0.649801 mm")),
    Sketcher.Constraint("Distance", 3, Q("0.27977 mm")),
    Sketcher.Constraint("Distance", 8, Q("0.144429 mm")),
    Sketcher.Constraint("Distance", 9, Q("0.27614 mm")),
    Sketcher.Constraint("Distance", 10, Q("0.216849 mm")),
    Sketcher.Constraint("Distance", 12, Q("0.632492 mm")),
    Sketcher.Constraint("Distance", 18, Q("0.129428 mm")),
    Sketcher.Constraint("Distance", 40, Q("0.120751 mm")),
    Sketcher.Constraint("DistanceX", 0, 2, -1, 1, Q("1.079278 mm")),
    Sketcher.Constraint("DistanceX", 4, 2, -1, 1, Q("0.688891 mm")),
    Sketcher.Constraint("DistanceX", 7, 2, -1, 1, Q("0.645769 mm")),
    Sketcher.Constraint("DistanceX", 9, 2, -1, 1, Q("0.932358 mm")),
    Sketcher.Constraint("DistanceX", 11, 2, -1, 1, Q("0.49598 mm")),
    Sketcher.Constraint("DistanceX", 12, 2, -1, 1, Q("0.461762 mm")),
    Sketcher.Constraint("DistanceY", -1, 1, 12, 2, Q("6.586358 mm")),
    Sketcher.Constraint("DistanceY", -1, 1, 18, 2, Q("7.106748 mm")),
    Sketcher.Constraint("DistanceY", -1, 1, 23, 2, Q("6.977509 mm")),
    Sketcher.Constraint("DistanceX", -1, 1, 41, 2, Q("0.514609 mm")),
    Sketcher.Constraint("DistanceX", -1, 1, 45, 2, Q("0.695619 mm")),
    Sketcher.Constraint("DistanceY", -1, 1, 45, 2, Q("7.202281 mm")),
    Sketcher.Constraint("DistanceX", 0, 2, 1, 2, Q("0.076831 mm")),
    Sketcher.Constraint("DistanceX", 1, 2, 2, 2, Q("0.120462 mm")),
    Sketcher.Constraint("DistanceY", 2, 2, 0, 2, Q("0.610959 mm")),
    Sketcher.Constraint("DistanceX", 3, 2, 2, 2, Q("0.034091 mm")),
    Sketcher.Constraint("DistanceX", 2, 2, 5, 2, Q("0.334291 mm")),
    Sketcher.Constraint("DistanceY", 3, 2, 6, 2, Q("0.08052 mm")),
    Sketcher.Constraint("DistanceX", 2, 2, 6, 2, Q("0.051772 mm")),
    Sketcher.Constraint("DistanceY", 0, 2, 7, 2, Q("0.053171 mm")),
    Sketcher.Constraint("DistanceY", 41, 2, 32, 2, Q("0.212109 mm")),
    Sketcher.Constraint("DistanceY", 42, 2, 40, 2, Q("0.659932 mm")),
    Sketcher.Constraint("DistanceY", 42, 2, 43, 2, Q("0.11461 mm")),
    Sketcher.Constraint("DistanceX", 40, 2, 43, 2, Q("0.24563 mm")),
    Sketcher.Constraint("DistanceX", 44, 2, 43, 2, Q("0.175159 mm")),
    Sketcher.Constraint("DistanceY", 43, 2, 44, 2, Q("0.016918 mm")),
])
pocket1 = body.newObject("PartDesign::Pocket", "Pocket")
pocket1.Profile = sketch2
pocket1.Length = Q("0.0025 in")

doc.recompute()
